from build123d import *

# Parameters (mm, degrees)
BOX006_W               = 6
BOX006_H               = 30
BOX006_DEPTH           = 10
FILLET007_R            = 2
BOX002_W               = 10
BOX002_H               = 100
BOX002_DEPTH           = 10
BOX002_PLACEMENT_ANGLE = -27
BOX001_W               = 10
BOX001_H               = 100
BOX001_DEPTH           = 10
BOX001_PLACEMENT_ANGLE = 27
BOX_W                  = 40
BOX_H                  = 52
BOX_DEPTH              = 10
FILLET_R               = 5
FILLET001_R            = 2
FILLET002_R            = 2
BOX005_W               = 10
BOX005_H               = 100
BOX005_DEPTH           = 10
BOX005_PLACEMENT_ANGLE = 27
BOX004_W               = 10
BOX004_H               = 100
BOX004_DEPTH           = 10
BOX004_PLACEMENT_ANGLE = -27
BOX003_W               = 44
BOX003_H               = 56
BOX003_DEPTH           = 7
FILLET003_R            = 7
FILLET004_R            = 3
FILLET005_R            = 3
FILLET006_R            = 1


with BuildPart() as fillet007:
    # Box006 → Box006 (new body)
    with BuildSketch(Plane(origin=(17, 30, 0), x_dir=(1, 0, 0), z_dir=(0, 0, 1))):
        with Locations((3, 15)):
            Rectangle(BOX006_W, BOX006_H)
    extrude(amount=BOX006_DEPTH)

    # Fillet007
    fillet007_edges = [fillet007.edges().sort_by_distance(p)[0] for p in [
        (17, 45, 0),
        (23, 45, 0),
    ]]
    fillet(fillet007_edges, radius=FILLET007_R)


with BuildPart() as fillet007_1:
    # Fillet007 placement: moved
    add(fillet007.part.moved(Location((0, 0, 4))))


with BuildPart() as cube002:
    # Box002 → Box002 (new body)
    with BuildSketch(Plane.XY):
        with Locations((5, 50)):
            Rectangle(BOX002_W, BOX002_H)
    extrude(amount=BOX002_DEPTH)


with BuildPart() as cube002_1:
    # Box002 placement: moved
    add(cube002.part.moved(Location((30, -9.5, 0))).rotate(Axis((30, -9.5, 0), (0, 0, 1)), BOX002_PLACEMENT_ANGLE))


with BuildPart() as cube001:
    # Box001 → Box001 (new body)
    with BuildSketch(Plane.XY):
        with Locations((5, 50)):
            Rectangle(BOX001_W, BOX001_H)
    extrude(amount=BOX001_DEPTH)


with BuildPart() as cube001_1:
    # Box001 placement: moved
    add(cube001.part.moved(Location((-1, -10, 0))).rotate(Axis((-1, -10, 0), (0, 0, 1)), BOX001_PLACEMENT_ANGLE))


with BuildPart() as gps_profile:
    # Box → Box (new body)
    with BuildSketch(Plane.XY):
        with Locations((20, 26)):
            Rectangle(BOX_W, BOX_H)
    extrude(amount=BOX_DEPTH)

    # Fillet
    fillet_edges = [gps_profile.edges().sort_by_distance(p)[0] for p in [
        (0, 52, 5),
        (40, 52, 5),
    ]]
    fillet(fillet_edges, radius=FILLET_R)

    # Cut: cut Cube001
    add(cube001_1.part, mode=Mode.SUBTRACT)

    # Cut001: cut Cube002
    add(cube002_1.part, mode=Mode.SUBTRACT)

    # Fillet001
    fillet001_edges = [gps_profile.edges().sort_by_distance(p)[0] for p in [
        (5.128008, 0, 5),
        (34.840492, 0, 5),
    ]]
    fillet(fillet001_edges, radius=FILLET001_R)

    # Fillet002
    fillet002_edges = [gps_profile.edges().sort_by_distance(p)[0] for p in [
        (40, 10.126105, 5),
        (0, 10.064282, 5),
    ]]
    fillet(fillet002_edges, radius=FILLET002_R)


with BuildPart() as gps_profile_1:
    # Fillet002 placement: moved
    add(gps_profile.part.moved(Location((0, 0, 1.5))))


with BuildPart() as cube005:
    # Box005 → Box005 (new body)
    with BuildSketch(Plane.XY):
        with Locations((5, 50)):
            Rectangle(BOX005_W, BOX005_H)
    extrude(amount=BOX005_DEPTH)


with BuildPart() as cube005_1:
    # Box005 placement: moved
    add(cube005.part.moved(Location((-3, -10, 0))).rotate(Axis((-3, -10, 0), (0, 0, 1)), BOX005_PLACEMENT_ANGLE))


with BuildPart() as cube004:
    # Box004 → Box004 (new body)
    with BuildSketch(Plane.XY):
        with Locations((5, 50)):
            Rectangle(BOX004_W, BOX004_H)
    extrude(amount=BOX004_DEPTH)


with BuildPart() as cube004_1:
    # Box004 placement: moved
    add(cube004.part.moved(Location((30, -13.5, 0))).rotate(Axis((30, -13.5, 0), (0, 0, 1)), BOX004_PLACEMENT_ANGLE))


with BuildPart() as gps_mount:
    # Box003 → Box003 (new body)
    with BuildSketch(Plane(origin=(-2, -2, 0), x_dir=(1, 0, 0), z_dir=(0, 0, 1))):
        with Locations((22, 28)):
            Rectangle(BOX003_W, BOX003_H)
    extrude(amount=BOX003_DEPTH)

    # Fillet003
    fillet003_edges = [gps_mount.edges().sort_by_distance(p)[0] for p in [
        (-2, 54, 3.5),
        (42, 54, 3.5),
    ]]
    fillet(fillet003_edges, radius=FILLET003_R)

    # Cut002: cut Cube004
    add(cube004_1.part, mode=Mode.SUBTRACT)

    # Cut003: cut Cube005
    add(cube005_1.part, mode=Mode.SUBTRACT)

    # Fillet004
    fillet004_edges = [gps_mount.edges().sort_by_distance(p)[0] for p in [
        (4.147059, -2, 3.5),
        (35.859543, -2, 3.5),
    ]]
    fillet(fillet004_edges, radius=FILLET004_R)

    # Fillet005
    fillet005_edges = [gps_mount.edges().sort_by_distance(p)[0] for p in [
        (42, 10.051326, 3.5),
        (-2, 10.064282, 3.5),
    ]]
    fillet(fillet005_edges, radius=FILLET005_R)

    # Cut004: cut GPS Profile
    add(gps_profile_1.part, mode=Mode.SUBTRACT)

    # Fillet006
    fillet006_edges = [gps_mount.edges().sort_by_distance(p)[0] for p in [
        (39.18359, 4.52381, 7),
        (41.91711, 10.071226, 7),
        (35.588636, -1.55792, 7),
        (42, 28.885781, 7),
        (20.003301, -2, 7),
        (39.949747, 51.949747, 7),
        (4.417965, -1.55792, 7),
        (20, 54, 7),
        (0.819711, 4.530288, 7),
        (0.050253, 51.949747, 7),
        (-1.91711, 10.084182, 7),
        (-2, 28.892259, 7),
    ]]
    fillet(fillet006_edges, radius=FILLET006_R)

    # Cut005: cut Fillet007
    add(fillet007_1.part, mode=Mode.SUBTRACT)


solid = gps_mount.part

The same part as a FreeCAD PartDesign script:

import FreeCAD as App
import Part
import Sketcher
from FreeCAD import Vector


def edges_at(feature, points):
    """Names of the edges that pass closest to the given points."""
    edges = feature.Shape.Edges
    near = lambda p: min(range(len(edges)), key=lambda i: edges[i].distToShape(Part.Vertex(*p))[0])
    return sorted({f"Edge{near(p) + 1}" for p in points})

doc = App.newDocument("Part")
body = doc.addObject("PartDesign::Body", "Body")

sketch1 = body.newObject("Sketcher::SketchObject", "Sketch")
sketch1.AttachmentSupport = (doc.getObject("XY_Plane"), [""])
sketch1.MapMode = "FlatFace"
sketch1.addGeometry([
    Part.LineSegment(Vector(17, 60, 0), Vector(17, 30, 0)),
    Part.LineSegment(Vector(17, 30, 0), Vector(23, 30, 0)),
    Part.LineSegment(Vector(23, 30, 0), Vector(23, 60, 0)),
    Part.LineSegment(Vector(23, 60, 0), Vector(17, 60, 0)),
], False)
sketch1.addConstraint([
    Sketcher.Constraint("Coincident", 0, 2, 1, 1),
    Sketcher.Constraint("Coincident", 1, 2, 2, 1),
    Sketcher.Constraint("Coincident", 2, 2, 3, 1),
    Sketcher.Constraint("Coincident", 3, 2, 0, 1),
    Sketcher.Constraint("Vertical", 0),
    Sketcher.Constraint("Horizontal", 1),
    Sketcher.Constraint("Vertical", 2),
    Sketcher.Constraint("Horizontal", 3),
    Sketcher.Constraint("DistanceX", 1, 1, 1, 2, 6.0),
    Sketcher.Constraint("DistanceY", 0, 2, 0, 1, 30.0),
    Sketcher.Constraint("DistanceX", -1, 1, 0, 2, 17.0),
    Sketcher.Constraint("DistanceY", -1, 1, 0, 2, 30.0),
])
pad1 = body.newObject("PartDesign::Pad", "Pad")
pad1.Profile = sketch1
pad1.Length = 10
doc.recompute()

fillet = body.newObject("PartDesign::Fillet", "Fillet")
fillet.Base = (pad1, edges_at(pad1, [(17, 45, 0), (23, 45, 0)]))
fillet.Radius = 2
body2 = doc.addObject("PartDesign::Body", "Body001")
doc.recompute()

body.Placement = App.Placement(Vector(0, 0, 4), App.Rotation(Vector(0, 0, 1), 0))
boolean = body2.newObject("PartDesign::Boolean", "Boolean")
boolean.Type = "Fuse"
boolean.addObjects([body])
body3 = doc.addObject("PartDesign::Body", "Body002")

sketch2 = body3.newObject("Sketcher::SketchObject", "Sketch001")
sketch2.AttachmentSupport = (doc.getObject("XY_Plane002"), [""])
sketch2.MapMode = "FlatFace"
sketch2.addGeometry([
    Part.LineSegment(Vector(0, 100, 0), Vector(0, 0, 0)),
    Part.LineSegment(Vector(0, 0, 0), Vector(10, 0, 0)),
    Part.LineSegment(Vector(10, 0, 0), Vector(10, 100, 0)),
    Part.LineSegment(Vector(10, 100, 0), Vector(0, 100, 0)),
], False)
sketch2.addConstraint([
    Sketcher.Constraint("Coincident", 0, 2, 1, 1),
    Sketcher.Constraint("Coincident", 1, 2, 2, 1),
    Sketcher.Constraint("Coincident", 2, 2, 3, 1),
    Sketcher.Constraint("Coincident", 3, 2, 0, 1),
    Sketcher.Constraint("Vertical", 0),
    Sketcher.Constraint("Horizontal", 1),
    Sketcher.Constraint("Vertical", 2),
    Sketcher.Constraint("Horizontal", 3),
    Sketcher.Constraint("Coincident", 0, 2, -1, 1),
    Sketcher.Constraint("DistanceX", 1, 1, 1, 2, 10.0),
    Sketcher.Constraint("DistanceY", 0, 2, 0, 1, 100.0),
])
pad2 = body3.newObject("PartDesign::Pad", "Pad001")
pad2.Profile = sketch2
pad2.Length = 10
body4 = doc.addObject("PartDesign::Body", "Body003")
doc.recompute()

body3.Placement = App.Placement(Vector(30, -9.5, 0), App.Rotation(Vector(0, 0, 1), 333))
boolean2 = body4.newObject("PartDesign::Boolean", "Boolean001")
boolean2.Type = "Fuse"
boolean2.addObjects([body3])
body5 = doc.addObject("PartDesign::Body", "Body004")

sketch3 = body5.newObject("Sketcher::SketchObject", "Sketch002")
sketch3.AttachmentSupport = (doc.getObject("XY_Plane004"), [""])
sketch3.MapMode = "FlatFace"
sketch3.addGeometry([
    Part.LineSegment(Vector(0, 100, 0), Vector(0, 0, 0)),
    Part.LineSegment(Vector(0, 0, 0), Vector(10, 0, 0)),
    Part.LineSegment(Vector(10, 0, 0), Vector(10, 100, 0)),
    Part.LineSegment(Vector(10, 100, 0), Vector(0, 100, 0)),
], False)
sketch3.addConstraint([
    Sketcher.Constraint("Coincident", 0, 2, 1, 1),
    Sketcher.Constraint("Coincident", 1, 2, 2, 1),
    Sketcher.Constraint("Coincident", 2, 2, 3, 1),
    Sketcher.Constraint("Coincident", 3, 2, 0, 1),
    Sketcher.Constraint("Vertical", 0),
    Sketcher.Constraint("Horizontal", 1),
    Sketcher.Constraint("Vertical", 2),
    Sketcher.Constraint("Horizontal", 3),
    Sketcher.Constraint("Coincident", 0, 2, -1, 1),
    Sketcher.Constraint("DistanceX", 1, 1, 1, 2, 10.0),
    Sketcher.Constraint("DistanceY", 0, 2, 0, 1, 100.0),
])
pad3 = body5.newObject("PartDesign::Pad", "Pad002")
pad3.Profile = sketch3
pad3.Length = 10
body6 = doc.addObject("PartDesign::Body", "Body005")
doc.recompute()

body5.Placement = App.Placement(Vector(-1, -10, 0), App.Rotation(Vector(0, 0, 1), 27))
boolean3 = body6.newObject("PartDesign::Boolean", "Boolean002")
boolean3.Type = "Fuse"
boolean3.addObjects([body5])
body7 = doc.addObject("PartDesign::Body", "Body006")

sketch4 = body7.newObject("Sketcher::SketchObject", "Sketch003")
sketch4.AttachmentSupport = (doc.getObject("XY_Plane006"), [""])
sketch4.MapMode = "FlatFace"
sketch4.addGeometry([
    Part.LineSegment(Vector(0, 52, 0), Vector(0, 0, 0)),
    Part.LineSegment(Vector(0, 0, 0), Vector(40, 0, 0)),
    Part.LineSegment(Vector(40, 0, 0), Vector(40, 52, 0)),
    Part.LineSegment(Vector(40, 52, 0), Vector(0, 52, 0)),
], False)
sketch4.addConstraint([
    Sketcher.Constraint("Coincident", 0, 2, 1, 1),
    Sketcher.Constraint("Coincident", 1, 2, 2, 1),
    Sketcher.Constraint("Coincident", 2, 2, 3, 1),
    Sketcher.Constraint("Coincident", 3, 2, 0, 1),
    Sketcher.Constraint("Vertical", 0),
    Sketcher.Constraint("Horizontal", 1),
    Sketcher.Constraint("Vertical", 2),
    Sketcher.Constraint("Horizontal", 3),
    Sketcher.Constraint("Coincident", 0, 2, -1, 1),
    Sketcher.Constraint("DistanceX", 1, 1, 1, 2, 40.0),
    Sketcher.Constraint("DistanceY", 0, 2, 0, 1, 52.0),
])
pad4 = body7.newObject("PartDesign::Pad", "Pad003")
pad4.Profile = sketch4
pad4.Length = 10
doc.recompute()

fillet2 = body7.newObject("PartDesign::Fillet", "Fillet001")
fillet2.Base = (pad4, edges_at(pad4, [(0, 52, 5), (40, 52, 5)]))
fillet2.Radius = 5
doc.recompute()

boolean4 = body7.newObject("PartDesign::Boolean", "Boolean003")
boolean4.Type = "Cut"
boolean4.addObjects([body6])
doc.recompute()

boolean5 = body7.newObject("PartDesign::Boolean", "Boolean004")
boolean5.Type = "Cut"
boolean5.addObjects([body4])
doc.recompute()

fillet3 = body7.newObject("PartDesign::Fillet", "Fillet002")
fillet3.Base = (boolean5, edges_at(boolean5, [(5.128, 0, 5), (34.84, 0, 5)]))
fillet3.Radius = 2
doc.recompute()

fillet4 = body7.newObject("PartDesign::Fillet", "Fillet003")
fillet4.Base = (fillet3, edges_at(fillet3, [(40, 10.126, 5), (0, 10.064, 5)]))
fillet4.Radius = 2
body8 = doc.addObject("PartDesign::Body", "Body007")
doc.recompute()

body7.Placement = App.Placement(Vector(0, 0, 1.5), App.Rotation(Vector(0, 0, 1), 0))
boolean6 = body8.newObject("PartDesign::Boolean", "Boolean005")
boolean6.Type = "Fuse"
boolean6.addObjects([body7])
body9 = doc.addObject("PartDesign::Body", "Body008")

sketch5 = body9.newObject("Sketcher::SketchObject", "Sketch004")
sketch5.AttachmentSupport = (doc.getObject("XY_Plane008"), [""])
sketch5.MapMode = "FlatFace"
sketch5.addGeometry([
    Part.LineSegment(Vector(0, 100, 0), Vector(0, 0, 0)),
    Part.LineSegment(Vector(0, 0, 0), Vector(10, 0, 0)),
    Part.LineSegment(Vector(10, 0, 0), Vector(10, 100, 0)),
    Part.LineSegment(Vector(10, 100, 0), Vector(0, 100, 0)),
], False)
sketch5.addConstraint([
    Sketcher.Constraint("Coincident", 0, 2, 1, 1),
    Sketcher.Constraint("Coincident", 1, 2, 2, 1),
    Sketcher.Constraint("Coincident", 2, 2, 3, 1),
    Sketcher.Constraint("Coincident", 3, 2, 0, 1),
    Sketcher.Constraint("Vertical", 0),
    Sketcher.Constraint("Horizontal", 1),
    Sketcher.Constraint("Vertical", 2),
    Sketcher.Constraint("Horizontal", 3),
    Sketcher.Constraint("Coincident", 0, 2, -1, 1),
    Sketcher.Constraint("DistanceX", 1, 1, 1, 2, 10.0),
    Sketcher.Constraint("DistanceY", 0, 2, 0, 1, 100.0),
])
pad5 = body9.newObject("PartDesign::Pad", "Pad004")
pad5.Profile = sketch5
pad5.Length = 10
body10 = doc.addObject("PartDesign::Body", "Body009")
doc.recompute()

body9.Placement = App.Placement(Vector(-3, -10, 0), App.Rotation(Vector(0, 0, 1), 27))
boolean7 = body10.newObject("PartDesign::Boolean", "Boolean006")
boolean7.Type = "Fuse"
boolean7.addObjects([body9])
body11 = doc.addObject("PartDesign::Body", "Body010")

sketch6 = body11.newObject("Sketcher::SketchObject", "Sketch005")
sketch6.AttachmentSupport = (doc.getObject("XY_Plane010"), [""])
sketch6.MapMode = "FlatFace"
sketch6.addGeometry([
    Part.LineSegment(Vector(0, 100, 0), Vector(0, 0, 0)),
    Part.LineSegment(Vector(0, 0, 0), Vector(10, 0, 0)),
    Part.LineSegment(Vector(10, 0, 0), Vector(10, 100, 0)),
    Part.LineSegment(Vector(10, 100, 0), Vector(0, 100, 0)),
], False)
sketch6.addConstraint([
    Sketcher.Constraint("Coincident", 0, 2, 1, 1),
    Sketcher.Constraint("Coincident", 1, 2, 2, 1),
    Sketcher.Constraint("Coincident", 2, 2, 3, 1),
    Sketcher.Constraint("Coincident", 3, 2, 0, 1),
    Sketcher.Constraint("Vertical", 0),
    Sketcher.Constraint("Horizontal", 1),
    Sketcher.Constraint("Vertical", 2),
    Sketcher.Constraint("Horizontal", 3),
    Sketcher.Constraint("Coincident", 0, 2, -1, 1),
    Sketcher.Constraint("DistanceX", 1, 1, 1, 2, 10.0),
    Sketcher.Constraint("DistanceY", 0, 2, 0, 1, 100.0),
])
pad6 = body11.newObject("PartDesign::Pad", "Pad005")
pad6.Profile = sketch6
pad6.Length = 10
body12 = doc.addObject("PartDesign::Body", "Body011")
doc.recompute()

body11.Placement = App.Placement(Vector(30, -13.5, 0), App.Rotation(Vector(0, 0, 1), 333))
boolean8 = body12.newObject("PartDesign::Boolean", "Boolean007")
boolean8.Type = "Fuse"
boolean8.addObjects([body11])
body13 = doc.addObject("PartDesign::Body", "Body012")

sketch7 = body13.newObject("Sketcher::SketchObject", "Sketch006")
sketch7.AttachmentSupport = (doc.getObject("XY_Plane012"), [""])
sketch7.MapMode = "FlatFace"
sketch7.addGeometry([
    Part.LineSegment(Vector(-2, 54, 0), Vector(-2, -2, 0)),
    Part.LineSegment(Vector(-2, -2, 0), Vector(42, -2, 0)),
    Part.LineSegment(Vector(42, -2, 0), Vector(42, 54, 0)),
    Part.LineSegment(Vector(42, 54, 0), Vector(-2, 54, 0)),
], False)
sketch7.addConstraint([
    Sketcher.Constraint("Coincident", 0, 2, 1, 1),
    Sketcher.Constraint("Coincident", 1, 2, 2, 1),
    Sketcher.Constraint("Coincident", 2, 2, 3, 1),
    Sketcher.Constraint("Coincident", 3, 2, 0, 1),
    Sketcher.Constraint("Vertical", 0),
    Sketcher.Constraint("Horizontal", 1),
    Sketcher.Constraint("Vertical", 2),
    Sketcher.Constraint("Horizontal", 3),
    Sketcher.Constraint("DistanceX", 1, 1, 1, 2, 44.0),
    Sketcher.Constraint("DistanceY", 0, 2, 0, 1, 56.0),
    Sketcher.Constraint("DistanceX", 0, 2, -1, 1, 2.0),
    Sketcher.Constraint("DistanceY", 0, 2, -1, 1, 2.0),
])
pad7 = body13.newObject("PartDesign::Pad", "Pad006")
pad7.Profile = sketch7
pad7.Length = 7
doc.recompute()

fillet5 = body13.newObject("PartDesign::Fillet", "Fillet004")
fillet5.Base = (pad7, edges_at(pad7, [(-2, 54, 3.5), (42, 54, 3.5)]))
fillet5.Radius = 7
doc.recompute()

boolean9 = body13.newObject("PartDesign::Boolean", "Boolean008")
boolean9.Type = "Cut"
boolean9.addObjects([body12])
doc.recompute()

boolean10 = body13.newObject("PartDesign::Boolean", "Boolean009")
boolean10.Type = "Cut"
boolean10.addObjects([body10])
doc.recompute()

fillet6 = body13.newObject("PartDesign::Fillet", "Fillet005")
fillet6.Base = (boolean10, edges_at(boolean10, [(4.147, -2, 3.5), (35.86, -2, 3.5)]))
fillet6.Radius = 3
doc.recompute()

fillet7 = body13.newObject("PartDesign::Fillet", "Fillet006")
fillet7.Base = (fillet6, edges_at(fillet6, [(42, 10.051, 3.5), (-2, 10.064, 3.5)]))
fillet7.Radius = 3
doc.recompute()

boolean11 = body13.newObject("PartDesign::Boolean", "Boolean010")
boolean11.Type = "Cut"
boolean11.addObjects([body8])
doc.recompute()

fillet8 = body13.newObject("PartDesign::Fillet", "Fillet007")
fillet8.Base = (boolean11, edges_at(boolean11, [
    (39.184, 4.524, 7),
    (41.917, 10.071, 7),
    (35.589, -1.558, 7),
    (42, 28.886, 7),
    (20.003, -2, 7),
    (39.95, 51.95, 7),
    (4.418, -1.558, 7),
    (20, 54, 7),
    (0.82, 4.53, 7),
    (0.05, 51.95, 7),
    (-1.917, 10.084, 7),
    (-2, 28.892, 7),
]))
fillet8.Radius = 1
doc.recompute()

boolean12 = body13.newObject("PartDesign::Boolean", "Boolean011")
boolean12.Type = "Cut"
boolean12.addObjects([body2])

doc.recompute()
